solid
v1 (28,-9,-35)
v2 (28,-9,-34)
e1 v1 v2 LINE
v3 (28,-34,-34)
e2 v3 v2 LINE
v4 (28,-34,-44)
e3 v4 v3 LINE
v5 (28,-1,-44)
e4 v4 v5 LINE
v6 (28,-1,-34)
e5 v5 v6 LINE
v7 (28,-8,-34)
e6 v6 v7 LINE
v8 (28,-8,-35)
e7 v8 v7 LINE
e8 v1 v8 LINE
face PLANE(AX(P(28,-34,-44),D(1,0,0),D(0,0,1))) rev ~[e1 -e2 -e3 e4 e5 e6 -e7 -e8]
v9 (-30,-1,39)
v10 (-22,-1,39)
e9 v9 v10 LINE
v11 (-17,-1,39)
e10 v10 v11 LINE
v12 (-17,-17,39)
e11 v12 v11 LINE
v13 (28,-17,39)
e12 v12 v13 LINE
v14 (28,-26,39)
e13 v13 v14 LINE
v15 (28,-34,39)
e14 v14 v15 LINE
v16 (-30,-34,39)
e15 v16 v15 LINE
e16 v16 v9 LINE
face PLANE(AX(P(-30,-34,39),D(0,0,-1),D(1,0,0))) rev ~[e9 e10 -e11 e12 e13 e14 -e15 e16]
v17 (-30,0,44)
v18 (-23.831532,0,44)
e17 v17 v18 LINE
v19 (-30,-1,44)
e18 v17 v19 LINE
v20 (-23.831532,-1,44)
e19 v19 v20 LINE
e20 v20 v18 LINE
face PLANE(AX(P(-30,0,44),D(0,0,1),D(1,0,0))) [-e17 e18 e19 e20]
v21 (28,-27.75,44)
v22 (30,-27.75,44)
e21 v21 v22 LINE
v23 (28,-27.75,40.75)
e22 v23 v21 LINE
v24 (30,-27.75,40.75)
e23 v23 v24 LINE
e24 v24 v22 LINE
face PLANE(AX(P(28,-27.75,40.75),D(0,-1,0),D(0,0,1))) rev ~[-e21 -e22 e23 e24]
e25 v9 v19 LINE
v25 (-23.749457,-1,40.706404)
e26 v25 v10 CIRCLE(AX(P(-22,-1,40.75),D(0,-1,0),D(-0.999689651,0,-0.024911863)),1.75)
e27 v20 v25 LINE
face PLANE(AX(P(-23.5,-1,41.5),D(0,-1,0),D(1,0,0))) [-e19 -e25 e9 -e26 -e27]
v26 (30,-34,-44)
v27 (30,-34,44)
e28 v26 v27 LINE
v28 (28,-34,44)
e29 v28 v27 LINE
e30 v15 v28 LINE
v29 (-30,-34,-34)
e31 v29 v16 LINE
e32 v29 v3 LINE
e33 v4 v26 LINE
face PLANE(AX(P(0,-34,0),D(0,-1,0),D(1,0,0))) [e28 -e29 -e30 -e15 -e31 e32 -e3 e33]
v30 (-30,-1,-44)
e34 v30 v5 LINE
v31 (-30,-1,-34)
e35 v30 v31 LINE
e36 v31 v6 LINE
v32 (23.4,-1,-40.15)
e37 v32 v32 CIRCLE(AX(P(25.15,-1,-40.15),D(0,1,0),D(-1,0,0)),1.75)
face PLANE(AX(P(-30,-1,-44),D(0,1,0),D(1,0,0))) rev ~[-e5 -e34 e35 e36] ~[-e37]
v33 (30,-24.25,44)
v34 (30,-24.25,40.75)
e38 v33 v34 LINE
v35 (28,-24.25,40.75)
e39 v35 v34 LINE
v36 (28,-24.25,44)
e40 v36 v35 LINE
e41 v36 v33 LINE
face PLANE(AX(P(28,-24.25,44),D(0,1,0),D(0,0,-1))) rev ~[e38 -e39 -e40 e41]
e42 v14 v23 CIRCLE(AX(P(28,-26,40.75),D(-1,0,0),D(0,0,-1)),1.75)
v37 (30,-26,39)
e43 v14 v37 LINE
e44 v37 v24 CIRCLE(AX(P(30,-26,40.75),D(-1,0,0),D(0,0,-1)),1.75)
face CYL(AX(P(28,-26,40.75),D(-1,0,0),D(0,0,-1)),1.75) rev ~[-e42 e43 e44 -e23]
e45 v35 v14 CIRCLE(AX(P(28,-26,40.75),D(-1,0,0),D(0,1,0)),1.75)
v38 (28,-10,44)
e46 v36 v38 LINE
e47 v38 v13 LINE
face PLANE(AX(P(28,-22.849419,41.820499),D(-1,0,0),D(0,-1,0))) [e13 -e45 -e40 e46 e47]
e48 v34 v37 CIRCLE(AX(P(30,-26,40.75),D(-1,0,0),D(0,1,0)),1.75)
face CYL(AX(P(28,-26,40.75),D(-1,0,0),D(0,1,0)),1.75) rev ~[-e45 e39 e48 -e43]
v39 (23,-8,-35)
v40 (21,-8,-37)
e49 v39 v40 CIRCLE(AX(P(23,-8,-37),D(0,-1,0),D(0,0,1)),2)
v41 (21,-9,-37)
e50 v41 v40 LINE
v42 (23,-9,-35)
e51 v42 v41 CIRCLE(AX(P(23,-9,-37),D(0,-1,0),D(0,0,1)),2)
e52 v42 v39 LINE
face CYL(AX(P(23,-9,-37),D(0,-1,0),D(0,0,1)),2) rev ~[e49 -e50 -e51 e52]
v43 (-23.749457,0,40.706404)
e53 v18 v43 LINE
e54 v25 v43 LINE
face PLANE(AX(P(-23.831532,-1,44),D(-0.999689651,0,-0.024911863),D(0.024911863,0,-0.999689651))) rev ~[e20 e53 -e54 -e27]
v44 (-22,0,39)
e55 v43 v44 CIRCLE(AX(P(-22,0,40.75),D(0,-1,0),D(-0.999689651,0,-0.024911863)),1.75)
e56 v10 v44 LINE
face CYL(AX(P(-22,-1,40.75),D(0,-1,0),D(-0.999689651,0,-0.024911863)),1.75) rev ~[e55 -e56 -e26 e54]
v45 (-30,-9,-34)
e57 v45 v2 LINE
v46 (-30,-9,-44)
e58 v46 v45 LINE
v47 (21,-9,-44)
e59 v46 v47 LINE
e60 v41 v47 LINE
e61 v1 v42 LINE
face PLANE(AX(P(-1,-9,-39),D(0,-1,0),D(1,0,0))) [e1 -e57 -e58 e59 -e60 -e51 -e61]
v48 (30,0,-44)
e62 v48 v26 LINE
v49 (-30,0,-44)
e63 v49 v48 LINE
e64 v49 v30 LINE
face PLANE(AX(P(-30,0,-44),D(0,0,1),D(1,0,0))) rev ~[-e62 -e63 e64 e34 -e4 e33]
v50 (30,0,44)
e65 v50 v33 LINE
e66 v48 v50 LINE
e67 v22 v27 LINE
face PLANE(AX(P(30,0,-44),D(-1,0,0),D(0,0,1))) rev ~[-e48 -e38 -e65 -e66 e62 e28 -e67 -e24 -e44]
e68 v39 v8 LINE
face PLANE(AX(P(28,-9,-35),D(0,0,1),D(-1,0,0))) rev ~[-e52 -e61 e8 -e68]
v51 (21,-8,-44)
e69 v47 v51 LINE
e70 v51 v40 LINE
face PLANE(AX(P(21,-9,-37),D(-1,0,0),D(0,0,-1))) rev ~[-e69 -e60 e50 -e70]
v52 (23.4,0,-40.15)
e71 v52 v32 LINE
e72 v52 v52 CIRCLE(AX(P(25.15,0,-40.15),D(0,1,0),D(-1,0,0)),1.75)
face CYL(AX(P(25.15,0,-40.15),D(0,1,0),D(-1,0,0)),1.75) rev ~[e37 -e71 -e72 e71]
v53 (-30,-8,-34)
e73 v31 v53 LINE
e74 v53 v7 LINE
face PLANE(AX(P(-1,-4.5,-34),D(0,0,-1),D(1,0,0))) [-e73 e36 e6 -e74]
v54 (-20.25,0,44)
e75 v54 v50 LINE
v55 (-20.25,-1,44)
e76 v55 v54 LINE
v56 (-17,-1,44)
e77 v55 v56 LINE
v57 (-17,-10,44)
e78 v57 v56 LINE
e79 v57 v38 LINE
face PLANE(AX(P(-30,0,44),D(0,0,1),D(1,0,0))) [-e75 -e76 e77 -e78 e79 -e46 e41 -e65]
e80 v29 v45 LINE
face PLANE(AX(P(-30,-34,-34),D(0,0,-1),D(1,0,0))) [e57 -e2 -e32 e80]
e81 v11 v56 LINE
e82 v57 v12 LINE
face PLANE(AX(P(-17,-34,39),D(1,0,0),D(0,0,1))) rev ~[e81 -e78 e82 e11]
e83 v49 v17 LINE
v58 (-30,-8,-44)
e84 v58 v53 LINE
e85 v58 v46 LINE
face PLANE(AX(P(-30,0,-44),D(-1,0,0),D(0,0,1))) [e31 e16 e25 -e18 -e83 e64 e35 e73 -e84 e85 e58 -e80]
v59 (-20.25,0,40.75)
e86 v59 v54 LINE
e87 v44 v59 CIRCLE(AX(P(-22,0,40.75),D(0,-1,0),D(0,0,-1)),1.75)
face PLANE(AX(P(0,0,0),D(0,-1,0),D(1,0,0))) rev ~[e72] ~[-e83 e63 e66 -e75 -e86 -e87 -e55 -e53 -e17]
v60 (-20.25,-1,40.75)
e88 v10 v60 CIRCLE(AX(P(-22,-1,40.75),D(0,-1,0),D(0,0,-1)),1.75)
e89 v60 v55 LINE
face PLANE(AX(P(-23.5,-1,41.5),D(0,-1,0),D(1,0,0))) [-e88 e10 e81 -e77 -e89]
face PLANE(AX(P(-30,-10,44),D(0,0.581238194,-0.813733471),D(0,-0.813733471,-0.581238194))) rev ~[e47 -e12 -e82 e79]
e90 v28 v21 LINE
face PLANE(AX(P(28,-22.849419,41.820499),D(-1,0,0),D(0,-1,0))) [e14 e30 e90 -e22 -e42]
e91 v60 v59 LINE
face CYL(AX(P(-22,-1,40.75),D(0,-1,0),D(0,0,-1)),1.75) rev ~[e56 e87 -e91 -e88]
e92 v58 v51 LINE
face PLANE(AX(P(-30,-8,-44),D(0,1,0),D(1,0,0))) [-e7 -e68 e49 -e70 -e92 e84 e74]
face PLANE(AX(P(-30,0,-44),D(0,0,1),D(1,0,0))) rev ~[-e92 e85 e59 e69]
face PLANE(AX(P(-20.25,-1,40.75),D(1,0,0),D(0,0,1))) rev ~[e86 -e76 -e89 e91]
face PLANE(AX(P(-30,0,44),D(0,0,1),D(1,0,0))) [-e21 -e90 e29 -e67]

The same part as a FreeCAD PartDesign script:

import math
import FreeCAD as App
import Part
import Sketcher

doc = App.newDocument("Part")
body = doc.addObject("PartDesign::Body", "Body")

# Sketch on XZ plane
sketch1 = body.newObject("Sketcher::SketchObject", "Sketch")
sketch1.AttachmentSupport = (doc.getObject("XZ_Plane"), [""])
sketch1.MapMode = "FlatFace"
sketch1.addGeometry([
    Part.LineSegment(App.Vector(-30, 44, 0), App.Vector(-30, -44, 0)),
    Part.LineSegment(App.Vector(-30, -44, 0), App.Vector(30, -44, 0)),
    Part.LineSegment(App.Vector(30, -44, 0), App.Vector(30, 44, 0)),
    Part.LineSegment(App.Vector(30, 44, 0), App.Vector(-30, 44, 0)),
], False)
sketch1.addConstraint([
    Sketcher.Constraint("Coincident", 0, 2, 1, 1),
    Sketcher.Constraint("Coincident", 1, 2, 2, 1),
    Sketcher.Constraint("Coincident", 2, 2, 3, 1),
    Sketcher.Constraint("Coincident", 3, 2, 0, 1),
    Sketcher.Constraint("Vertical", 0),
    Sketcher.Constraint("Horizontal", 1),
    Sketcher.Constraint("Vertical", 2),
    Sketcher.Constraint("Horizontal", 3),
    Sketcher.Constraint("Symmetric", 0, 2, 2, 2, -1, 1),
    Sketcher.Constraint("DistanceX", 1, 1, 1, 2, 60.0),
    Sketcher.Constraint("DistanceY", 0, 2, 0, 1, 88.0),
])
pad1 = body.newObject("PartDesign::Pad", "Pad")
pad1.Profile = sketch1
pad1.Length = 34

# Sketch on YZ plane
sketch2 = body.newObject("Sketcher::SketchObject", "Sketch001")
sketch2.AttachmentSupport = (doc.getObject("YZ_Plane"), [""])
sketch2.MapMode = "FlatFace"
sketch2.AttachmentOffset = App.Placement(App.Vector(0, 0, -30), App.Rotation())
sketch2.addGeometry([
    Part.LineSegment(App.Vector(-34, 39, 0), App.Vector(-34, 44, 0)),
    Part.LineSegment(App.Vector(-34, 44, 0), App.Vector(-10, 44, 0)),
    Part.LineSegment(App.Vector(-10, 44, 0), App.Vector(-17, 39, 0)),
    Part.LineSegment(App.Vector(-17, 39, 0), App.Vector(-34, 39, 0)),
], False)
sketch2.addConstraint([
    Sketcher.Constraint("Coincident", 0, 2, 1, 1),
    Sketcher.Constraint("Coincident", 1, 2, 2, 1),
    Sketcher.Constraint("Coincident", 2, 2, 3, 1),
    Sketcher.Constraint("Coincident", 3, 2, 0, 1),
    Sketcher.Constraint("Vertical", 0),
    Sketcher.Constraint("Horizontal", 1),
    Sketcher.Constraint("Horizontal", 3),
    Sketcher.Constraint("DistanceX", 1, 1, 1, 2, 24.0),
    Sketcher.Constraint("DistanceX", 3, 2, 3, 1, 17.0),
    Sketcher.Constraint("DistanceY", 0, 1, 0, 2, 5.0),
    Sketcher.Constraint("DistanceX", 0, 2, -1, 1, 34.0),
    Sketcher.Constraint("DistanceY", -1, 1, 0, 2, 44.0),
])
pocket1 = body.newObject("PartDesign::Pocket", "Pocket")
pocket1.Profile = sketch2
pocket1.Length = 58
pocket1.Reversed = True

# Sketch on XZ plane
sketch3 = body.newObject("Sketcher::SketchObject", "Sketch002")
sketch3.AttachmentSupport = (doc.getObject("XZ_Plane"), [""])
sketch3.MapMode = "FlatFace"
sketch3.AttachmentOffset = App.Placement(App.Vector(0, 0, 34), App.Rotation())
sketch3.addGeometry([
    Part.LineSegment(App.Vector(-30, 44, 0), App.Vector(-30, 39, 0)),
    Part.LineSegment(App.Vector(-30, 39, 0), App.Vector(-17, 39, 0)),
    Part.LineSegment(App.Vector(-17, 39, 0), App.Vector(-17, 44, 0)),
    Part.LineSegment(App.Vector(-17, 44, 0), App.Vector(-30, 44, 0)),
], False)
sketch3.addConstraint([
    Sketcher.Constraint("Coincident", 0, 2, 1, 1),
    Sketcher.Constraint("Coincident", 1, 2, 2, 1),
    Sketcher.Constraint("Coincident", 2, 2, 3, 1),
    Sketcher.Constraint("Coincident", 3, 2, 0, 1),
    Sketcher.Constraint("Vertical", 0),
    Sketcher.Constraint("Horizontal", 1),
    Sketcher.Constraint("Vertical", 2),
    Sketcher.Constraint("Horizontal", 3),
    Sketcher.Constraint("DistanceX", 1, 1, 1, 2, 13.0),
    Sketcher.Constraint("DistanceY", 0, 2, 0, 1, 5.0),
    Sketcher.Constraint("DistanceX", 0, 2, -1, 1, 30.0),
    Sketcher.Constraint("DistanceY", -1, 1, 0, 2, 39.0),
])
pocket2 = body.newObject("PartDesign::Pocket", "Pocket001")
pocket2.Profile = sketch3
pocket2.Length = 33

# Sketch on XZ plane
sketch4 = body.newObject("Sketcher::SketchObject", "Sketch003")
sketch4.AttachmentSupport = (doc.getObject("XZ_Plane"), [""])
sketch4.MapMode = "FlatFace"
sketch4.AttachmentOffset = App.Placement(App.Vector(0, 0, 1), App.Rotation())
sketch4.addGeometry([
    Part.LineSegment(App.Vector(-23.8, 44, 0), App.Vector(-23.7, 40.7, 0)),  # 0
    Part.ArcOfCircle(Part.Circle(App.Vector(-22, 40.8, 0), App.Vector(0, 0, 1), 1.8), math.radians(-179), math.radians(-90)),  # 1
    Part.ArcOfCircle(Part.Circle(App.Vector(-22, 40.8, 0), App.Vector(0, 0, 1), 1.8), math.radians(-90), math.radians(0)),  # 2
    Part.LineSegment(App.Vector(-20.2, 40.8, 0), App.Vector(-20.2, 44, 0)),  # 3
    Part.LineSegment(App.Vector(-20.2, 44, 0), App.Vector(-23.8, 44, 0)),  # 4
], False)
sketch4.addConstraint([
    Sketcher.Constraint("Tangent", 0, 2, 1, 1),
    Sketcher.Constraint("Tangent", 1, 2, 2, 1),
    Sketcher.Constraint("Tangent", 2, 2, 3, 1),
    Sketcher.Constraint("Coincident", 3, 2, 4, 1),
    Sketcher.Constraint("Coincident", 4, 2, 0, 1),
    Sketcher.Constraint("Vertical", 3),
    Sketcher.Constraint("Horizontal", 4),
    Sketcher.Constraint("Equal", 1, 2),
    Sketcher.Constraint("Vertical", 2, 3, 1, 2),
    Sketcher.Constraint("Radius", 1, 1.75),
    Sketcher.Constraint("DistanceX", 1, 3, -1, 1, 22.0),
    Sketcher.Constraint("DistanceY", -1, 1, 1, 2, 39.0),
    Sketcher.Constraint("DistanceY", -1, 1, 3, 2, 44.0),
    Sketcher.Constraint("DistanceX", 4, 2, 4, 1, 3.581532),
])
pocket3 = body.newObject("PartDesign::Pocket", "Pocket002")
pocket3.Profile = sketch4
pocket3.Type = "ThroughAll"

# Sketch on YZ plane
sketch5 = body.newObject("Sketcher::SketchObject", "Sketch004")
sketch5.AttachmentSupport = (doc.getObject("YZ_Plane"), [""])
sketch5.MapMode = "FlatFace"
sketch5.AttachmentOffset = App.Placement(App.Vector(0, 0, 28), App.Rotation())
sketch5.addGeometry([
    Part.LineSegment(App.Vector(-24.2, 44, 0), App.Vector(-24.2, 40.8, 0)),  # 0
    Part.ArcOfCircle(Part.Circle(App.Vector(-26, 40.8, 0), App.Vector(0, 0, 1), 1.8), math.radians(-90), math.radians(0)),  # 1
    Part.ArcOfCircle(Part.Circle(App.Vector(-26, 40.8, 0), App.Vector(0, 0, 1), 1.8), math.radians(180), math.radians(270)),  # 2
    Part.LineSegment(App.Vector(-27.8, 40.8, 0), App.Vector(-27.8, 44, 0)),  # 3
    Part.LineSegment(App.Vector(-27.8, 44, 0), App.Vector(-24.2, 44, 0)),  # 4
], False)
sketch5.addConstraint([
    Sketcher.Constraint("Tangent", 0, 2, 1, 2),
    Sketcher.Constraint("Tangent", 1, 1, 2, 2),
    Sketcher.Constraint("Tangent", 2, 1, 3, 1),
    Sketcher.Constraint("Coincident", 3, 2, 4, 1),
    Sketcher.Constraint("Coincident", 4, 2, 0, 1),
    Sketcher.Constraint("Vertical", 0),
    Sketcher.Constraint("Vertical", 3),
    Sketcher.Constraint("Horizontal", 4),
    Sketcher.Constraint("Equal", 1, 2),
    Sketcher.Constraint("Vertical", 2, 3, 1, 1),
    Sketcher.Constraint("Radius", 1, 1.75),
    Sketcher.Constraint("DistanceX", 1, 3, -1, 1, 26.0),
    Sketcher.Constraint("DistanceY", -1, 1, 1, 1, 39.0),
    Sketcher.Constraint("DistanceY", -1, 1, 3, 2, 44.0),
])
pocket4 = body.newObject("PartDesign::Pocket", "Pocket003")
pocket4.Profile = sketch5
pocket4.Type = "ThroughAll"
pocket4.Reversed = True

# Sketch on XZ plane
sketch6 = body.newObject("Sketcher::SketchObject", "Sketch005")
sketch6.AttachmentSupport = (doc.getObject("XZ_Plane"), [""])
sketch6.MapMode = "FlatFace"
sketch6.AttachmentOffset = App.Placement(App.Vector(0, 0, 34), App.Rotation())
sketch6.addGeometry([
    Part.LineSegment(App.Vector(-30, -34, 0), App.Vector(-30, -44, 0)),
    Part.LineSegment(App.Vector(-30, -44, 0), App.Vector(28, -44, 0)),
    Part.LineSegment(App.Vector(28, -44, 0), App.Vector(28, -34, 0)),
    Part.LineSegment(App.Vector(28, -34, 0), App.Vector(-30, -34, 0)),
], False)
sketch6.addConstraint([
    Sketcher.Constraint("Coincident", 0, 2, 1, 1),
    Sketcher.Constraint("Coincident", 1, 2, 2, 1),
    Sketcher.Constraint("Coincident", 2, 2, 3, 1),
    Sketcher.Constraint("Coincident", 3, 2, 0, 1),
    Sketcher.Constraint("Vertical", 0),
    Sketcher.Constraint("Horizontal", 1),
    Sketcher.Constraint("Vertical", 2),
    Sketcher.Constraint("Horizontal", 3),
    Sketcher.Constraint("DistanceX", 1, 1, 1, 2, 58.0),
    Sketcher.Constraint("DistanceY", 0, 2, 0, 1, 10.0),
    Sketcher.Constraint("DistanceX", 0, 2, -1, 1, 30.0),
    Sketcher.Constraint("DistanceY", 0, 2, -1, 1, 44.0),
])
pocket5 = body.newObject("PartDesign::Pocket", "Pocket004")
pocket5.Profile = sketch6
pocket5.Length = 25

# Sketch on XY plane
sketch7 = body.newObject("Sketcher::SketchObject", "Sketch006")
sketch7.AttachmentSupport = (doc.getObject("XY_Plane"), [""])
sketch7.MapMode = "FlatFace"
sketch7.AttachmentOffset = App.Placement(App.Vector(0, 0, -44), App.Rotation())
sketch7.addGeometry([
    Part.LineSegment(App.Vector(-30, -8, 0), App.Vector(-30, -1, 0)),
    Part.LineSegment(App.Vector(-30, -1, 0), App.Vector(28, -1, 0)),
    Part.LineSegment(App.Vector(28, -1, 0), App.Vector(28, -8, 0)),
    Part.LineSegment(App.Vector(28, -8, 0), App.Vector(-30, -8, 0)),
], False)
sketch7.addConstraint([
    Sketcher.Constraint("Coincident", 0, 2, 1, 1),
    Sketcher.Constraint("Coincident", 1, 2, 2, 1),
    Sketcher.Constraint("Coincident", 2, 2, 3, 1),
    Sketcher.Constraint("Coincident", 3, 2, 0, 1),
    Sketcher.Constraint("Vertical", 0),
    Sketcher.Constraint("Horizontal", 1),
    Sketcher.Constraint("Vertical", 2),
    Sketcher.Constraint("Horizontal", 3),
    Sketcher.Constraint("DistanceX", 1, 1, 1, 2, 58.0),
    Sketcher.Constraint("DistanceY", 0, 1, 0, 2, 7.0),
    Sketcher.Constraint("DistanceX", 0, 2, -1, 1, 30.0),
    Sketcher.Constraint("DistanceY", 0, 2, -1, 1, 1.0),
])
pocket6 = body.newObject("PartDesign::Pocket", "Pocket005")
pocket6.Profile = sketch7
pocket6.Length = 10
pocket6.Reversed = True

# Sketch on XZ plane
sketch8 = body.newObject("Sketcher::SketchObject", "Sketch007")
sketch8.AttachmentSupport = (doc.getObject("XZ_Plane"), [""])
sketch8.MapMode = "FlatFace"
sketch8.AttachmentOffset = App.Placement(App.Vector(0, 0, 9), App.Rotation())
sketch8.addGeometry([
    Part.LineSegment(App.Vector(21, -37, 0), App.Vector(21, -44, 0)),  # 0
    Part.LineSegment(App.Vector(21, -44, 0), App.Vector(28, -44, 0)),  # 1
    Part.LineSegment(App.Vector(28, -44, 0), App.Vector(28, -35, 0)),  # 2
    Part.LineSegment(App.Vector(28, -35, 0), App.Vector(23, -35, 0)),  # 3
    Part.ArcOfCircle(Part.Circle(App.Vector(23, -37, 0), App.Vector(0, 0, 1), 2), math.radians(90), math.radians(180)),  # 4
], False)
sketch8.addConstraint([
    Sketcher.Constraint("Coincident", 0, 2, 1, 1),
    Sketcher.Constraint("Coincident", 1, 2, 2, 1),
    Sketcher.Constraint("Coincident", 2, 2, 3, 1),
    Sketcher.Constraint("Tangent", 3, 2, 4, 1),
    Sketcher.Constraint("Tangent", 4, 2, 0, 1),
    Sketcher.Constraint("Vertical", 0),
    Sketcher.Constraint("Horizontal", 1),
    Sketcher.Constraint("Vertical", 2),
    Sketcher.Constraint("Horizontal", 3),
    Sketcher.Constraint("Equal", 1, 0),
    Sketcher.Constraint("Radius", 4, 2.0),
    Sketcher.Constraint("DistanceX", 1, 1, 1, 2, 7.0),
    Sketcher.Constraint("DistanceX", -1, 1, 4, 3, 23.0),
    Sketcher.Constraint("DistanceY", 4, 3, -1, 1, 37.0),
])
pocket7 = body.newObject("PartDesign::Pocket", "Pocket006")
pocket7.Profile = sketch8
pocket7.Length = 3

# Sketch on XZ plane
sketch9 = body.newObject("Sketcher::SketchObject", "Sketch008")
sketch9.AttachmentSupport = (doc.getObject("XZ_Plane"), [""])
sketch9.MapMode = "FlatFace"
sketch9.addGeometry(Part.Circle(App.Vector(25.1, -40.1, 0), App.Vector(0, 0, 1), 1.8), False)
sketch9.addConstraint([
    Sketcher.Constraint("Diameter", 0, 3.5),
    Sketcher.Constraint("DistanceX", -1, 1, 0, 3, 25.15),
    Sketcher.Constraint("DistanceY", 0, 3, -1, 1, 40.15),
])
pocket8 = body.newObject("PartDesign::Pocket", "Pocket007")
pocket8.Profile = sketch9
pocket8.Length = 3
pocket8.Reversed = True

doc.recompute()
